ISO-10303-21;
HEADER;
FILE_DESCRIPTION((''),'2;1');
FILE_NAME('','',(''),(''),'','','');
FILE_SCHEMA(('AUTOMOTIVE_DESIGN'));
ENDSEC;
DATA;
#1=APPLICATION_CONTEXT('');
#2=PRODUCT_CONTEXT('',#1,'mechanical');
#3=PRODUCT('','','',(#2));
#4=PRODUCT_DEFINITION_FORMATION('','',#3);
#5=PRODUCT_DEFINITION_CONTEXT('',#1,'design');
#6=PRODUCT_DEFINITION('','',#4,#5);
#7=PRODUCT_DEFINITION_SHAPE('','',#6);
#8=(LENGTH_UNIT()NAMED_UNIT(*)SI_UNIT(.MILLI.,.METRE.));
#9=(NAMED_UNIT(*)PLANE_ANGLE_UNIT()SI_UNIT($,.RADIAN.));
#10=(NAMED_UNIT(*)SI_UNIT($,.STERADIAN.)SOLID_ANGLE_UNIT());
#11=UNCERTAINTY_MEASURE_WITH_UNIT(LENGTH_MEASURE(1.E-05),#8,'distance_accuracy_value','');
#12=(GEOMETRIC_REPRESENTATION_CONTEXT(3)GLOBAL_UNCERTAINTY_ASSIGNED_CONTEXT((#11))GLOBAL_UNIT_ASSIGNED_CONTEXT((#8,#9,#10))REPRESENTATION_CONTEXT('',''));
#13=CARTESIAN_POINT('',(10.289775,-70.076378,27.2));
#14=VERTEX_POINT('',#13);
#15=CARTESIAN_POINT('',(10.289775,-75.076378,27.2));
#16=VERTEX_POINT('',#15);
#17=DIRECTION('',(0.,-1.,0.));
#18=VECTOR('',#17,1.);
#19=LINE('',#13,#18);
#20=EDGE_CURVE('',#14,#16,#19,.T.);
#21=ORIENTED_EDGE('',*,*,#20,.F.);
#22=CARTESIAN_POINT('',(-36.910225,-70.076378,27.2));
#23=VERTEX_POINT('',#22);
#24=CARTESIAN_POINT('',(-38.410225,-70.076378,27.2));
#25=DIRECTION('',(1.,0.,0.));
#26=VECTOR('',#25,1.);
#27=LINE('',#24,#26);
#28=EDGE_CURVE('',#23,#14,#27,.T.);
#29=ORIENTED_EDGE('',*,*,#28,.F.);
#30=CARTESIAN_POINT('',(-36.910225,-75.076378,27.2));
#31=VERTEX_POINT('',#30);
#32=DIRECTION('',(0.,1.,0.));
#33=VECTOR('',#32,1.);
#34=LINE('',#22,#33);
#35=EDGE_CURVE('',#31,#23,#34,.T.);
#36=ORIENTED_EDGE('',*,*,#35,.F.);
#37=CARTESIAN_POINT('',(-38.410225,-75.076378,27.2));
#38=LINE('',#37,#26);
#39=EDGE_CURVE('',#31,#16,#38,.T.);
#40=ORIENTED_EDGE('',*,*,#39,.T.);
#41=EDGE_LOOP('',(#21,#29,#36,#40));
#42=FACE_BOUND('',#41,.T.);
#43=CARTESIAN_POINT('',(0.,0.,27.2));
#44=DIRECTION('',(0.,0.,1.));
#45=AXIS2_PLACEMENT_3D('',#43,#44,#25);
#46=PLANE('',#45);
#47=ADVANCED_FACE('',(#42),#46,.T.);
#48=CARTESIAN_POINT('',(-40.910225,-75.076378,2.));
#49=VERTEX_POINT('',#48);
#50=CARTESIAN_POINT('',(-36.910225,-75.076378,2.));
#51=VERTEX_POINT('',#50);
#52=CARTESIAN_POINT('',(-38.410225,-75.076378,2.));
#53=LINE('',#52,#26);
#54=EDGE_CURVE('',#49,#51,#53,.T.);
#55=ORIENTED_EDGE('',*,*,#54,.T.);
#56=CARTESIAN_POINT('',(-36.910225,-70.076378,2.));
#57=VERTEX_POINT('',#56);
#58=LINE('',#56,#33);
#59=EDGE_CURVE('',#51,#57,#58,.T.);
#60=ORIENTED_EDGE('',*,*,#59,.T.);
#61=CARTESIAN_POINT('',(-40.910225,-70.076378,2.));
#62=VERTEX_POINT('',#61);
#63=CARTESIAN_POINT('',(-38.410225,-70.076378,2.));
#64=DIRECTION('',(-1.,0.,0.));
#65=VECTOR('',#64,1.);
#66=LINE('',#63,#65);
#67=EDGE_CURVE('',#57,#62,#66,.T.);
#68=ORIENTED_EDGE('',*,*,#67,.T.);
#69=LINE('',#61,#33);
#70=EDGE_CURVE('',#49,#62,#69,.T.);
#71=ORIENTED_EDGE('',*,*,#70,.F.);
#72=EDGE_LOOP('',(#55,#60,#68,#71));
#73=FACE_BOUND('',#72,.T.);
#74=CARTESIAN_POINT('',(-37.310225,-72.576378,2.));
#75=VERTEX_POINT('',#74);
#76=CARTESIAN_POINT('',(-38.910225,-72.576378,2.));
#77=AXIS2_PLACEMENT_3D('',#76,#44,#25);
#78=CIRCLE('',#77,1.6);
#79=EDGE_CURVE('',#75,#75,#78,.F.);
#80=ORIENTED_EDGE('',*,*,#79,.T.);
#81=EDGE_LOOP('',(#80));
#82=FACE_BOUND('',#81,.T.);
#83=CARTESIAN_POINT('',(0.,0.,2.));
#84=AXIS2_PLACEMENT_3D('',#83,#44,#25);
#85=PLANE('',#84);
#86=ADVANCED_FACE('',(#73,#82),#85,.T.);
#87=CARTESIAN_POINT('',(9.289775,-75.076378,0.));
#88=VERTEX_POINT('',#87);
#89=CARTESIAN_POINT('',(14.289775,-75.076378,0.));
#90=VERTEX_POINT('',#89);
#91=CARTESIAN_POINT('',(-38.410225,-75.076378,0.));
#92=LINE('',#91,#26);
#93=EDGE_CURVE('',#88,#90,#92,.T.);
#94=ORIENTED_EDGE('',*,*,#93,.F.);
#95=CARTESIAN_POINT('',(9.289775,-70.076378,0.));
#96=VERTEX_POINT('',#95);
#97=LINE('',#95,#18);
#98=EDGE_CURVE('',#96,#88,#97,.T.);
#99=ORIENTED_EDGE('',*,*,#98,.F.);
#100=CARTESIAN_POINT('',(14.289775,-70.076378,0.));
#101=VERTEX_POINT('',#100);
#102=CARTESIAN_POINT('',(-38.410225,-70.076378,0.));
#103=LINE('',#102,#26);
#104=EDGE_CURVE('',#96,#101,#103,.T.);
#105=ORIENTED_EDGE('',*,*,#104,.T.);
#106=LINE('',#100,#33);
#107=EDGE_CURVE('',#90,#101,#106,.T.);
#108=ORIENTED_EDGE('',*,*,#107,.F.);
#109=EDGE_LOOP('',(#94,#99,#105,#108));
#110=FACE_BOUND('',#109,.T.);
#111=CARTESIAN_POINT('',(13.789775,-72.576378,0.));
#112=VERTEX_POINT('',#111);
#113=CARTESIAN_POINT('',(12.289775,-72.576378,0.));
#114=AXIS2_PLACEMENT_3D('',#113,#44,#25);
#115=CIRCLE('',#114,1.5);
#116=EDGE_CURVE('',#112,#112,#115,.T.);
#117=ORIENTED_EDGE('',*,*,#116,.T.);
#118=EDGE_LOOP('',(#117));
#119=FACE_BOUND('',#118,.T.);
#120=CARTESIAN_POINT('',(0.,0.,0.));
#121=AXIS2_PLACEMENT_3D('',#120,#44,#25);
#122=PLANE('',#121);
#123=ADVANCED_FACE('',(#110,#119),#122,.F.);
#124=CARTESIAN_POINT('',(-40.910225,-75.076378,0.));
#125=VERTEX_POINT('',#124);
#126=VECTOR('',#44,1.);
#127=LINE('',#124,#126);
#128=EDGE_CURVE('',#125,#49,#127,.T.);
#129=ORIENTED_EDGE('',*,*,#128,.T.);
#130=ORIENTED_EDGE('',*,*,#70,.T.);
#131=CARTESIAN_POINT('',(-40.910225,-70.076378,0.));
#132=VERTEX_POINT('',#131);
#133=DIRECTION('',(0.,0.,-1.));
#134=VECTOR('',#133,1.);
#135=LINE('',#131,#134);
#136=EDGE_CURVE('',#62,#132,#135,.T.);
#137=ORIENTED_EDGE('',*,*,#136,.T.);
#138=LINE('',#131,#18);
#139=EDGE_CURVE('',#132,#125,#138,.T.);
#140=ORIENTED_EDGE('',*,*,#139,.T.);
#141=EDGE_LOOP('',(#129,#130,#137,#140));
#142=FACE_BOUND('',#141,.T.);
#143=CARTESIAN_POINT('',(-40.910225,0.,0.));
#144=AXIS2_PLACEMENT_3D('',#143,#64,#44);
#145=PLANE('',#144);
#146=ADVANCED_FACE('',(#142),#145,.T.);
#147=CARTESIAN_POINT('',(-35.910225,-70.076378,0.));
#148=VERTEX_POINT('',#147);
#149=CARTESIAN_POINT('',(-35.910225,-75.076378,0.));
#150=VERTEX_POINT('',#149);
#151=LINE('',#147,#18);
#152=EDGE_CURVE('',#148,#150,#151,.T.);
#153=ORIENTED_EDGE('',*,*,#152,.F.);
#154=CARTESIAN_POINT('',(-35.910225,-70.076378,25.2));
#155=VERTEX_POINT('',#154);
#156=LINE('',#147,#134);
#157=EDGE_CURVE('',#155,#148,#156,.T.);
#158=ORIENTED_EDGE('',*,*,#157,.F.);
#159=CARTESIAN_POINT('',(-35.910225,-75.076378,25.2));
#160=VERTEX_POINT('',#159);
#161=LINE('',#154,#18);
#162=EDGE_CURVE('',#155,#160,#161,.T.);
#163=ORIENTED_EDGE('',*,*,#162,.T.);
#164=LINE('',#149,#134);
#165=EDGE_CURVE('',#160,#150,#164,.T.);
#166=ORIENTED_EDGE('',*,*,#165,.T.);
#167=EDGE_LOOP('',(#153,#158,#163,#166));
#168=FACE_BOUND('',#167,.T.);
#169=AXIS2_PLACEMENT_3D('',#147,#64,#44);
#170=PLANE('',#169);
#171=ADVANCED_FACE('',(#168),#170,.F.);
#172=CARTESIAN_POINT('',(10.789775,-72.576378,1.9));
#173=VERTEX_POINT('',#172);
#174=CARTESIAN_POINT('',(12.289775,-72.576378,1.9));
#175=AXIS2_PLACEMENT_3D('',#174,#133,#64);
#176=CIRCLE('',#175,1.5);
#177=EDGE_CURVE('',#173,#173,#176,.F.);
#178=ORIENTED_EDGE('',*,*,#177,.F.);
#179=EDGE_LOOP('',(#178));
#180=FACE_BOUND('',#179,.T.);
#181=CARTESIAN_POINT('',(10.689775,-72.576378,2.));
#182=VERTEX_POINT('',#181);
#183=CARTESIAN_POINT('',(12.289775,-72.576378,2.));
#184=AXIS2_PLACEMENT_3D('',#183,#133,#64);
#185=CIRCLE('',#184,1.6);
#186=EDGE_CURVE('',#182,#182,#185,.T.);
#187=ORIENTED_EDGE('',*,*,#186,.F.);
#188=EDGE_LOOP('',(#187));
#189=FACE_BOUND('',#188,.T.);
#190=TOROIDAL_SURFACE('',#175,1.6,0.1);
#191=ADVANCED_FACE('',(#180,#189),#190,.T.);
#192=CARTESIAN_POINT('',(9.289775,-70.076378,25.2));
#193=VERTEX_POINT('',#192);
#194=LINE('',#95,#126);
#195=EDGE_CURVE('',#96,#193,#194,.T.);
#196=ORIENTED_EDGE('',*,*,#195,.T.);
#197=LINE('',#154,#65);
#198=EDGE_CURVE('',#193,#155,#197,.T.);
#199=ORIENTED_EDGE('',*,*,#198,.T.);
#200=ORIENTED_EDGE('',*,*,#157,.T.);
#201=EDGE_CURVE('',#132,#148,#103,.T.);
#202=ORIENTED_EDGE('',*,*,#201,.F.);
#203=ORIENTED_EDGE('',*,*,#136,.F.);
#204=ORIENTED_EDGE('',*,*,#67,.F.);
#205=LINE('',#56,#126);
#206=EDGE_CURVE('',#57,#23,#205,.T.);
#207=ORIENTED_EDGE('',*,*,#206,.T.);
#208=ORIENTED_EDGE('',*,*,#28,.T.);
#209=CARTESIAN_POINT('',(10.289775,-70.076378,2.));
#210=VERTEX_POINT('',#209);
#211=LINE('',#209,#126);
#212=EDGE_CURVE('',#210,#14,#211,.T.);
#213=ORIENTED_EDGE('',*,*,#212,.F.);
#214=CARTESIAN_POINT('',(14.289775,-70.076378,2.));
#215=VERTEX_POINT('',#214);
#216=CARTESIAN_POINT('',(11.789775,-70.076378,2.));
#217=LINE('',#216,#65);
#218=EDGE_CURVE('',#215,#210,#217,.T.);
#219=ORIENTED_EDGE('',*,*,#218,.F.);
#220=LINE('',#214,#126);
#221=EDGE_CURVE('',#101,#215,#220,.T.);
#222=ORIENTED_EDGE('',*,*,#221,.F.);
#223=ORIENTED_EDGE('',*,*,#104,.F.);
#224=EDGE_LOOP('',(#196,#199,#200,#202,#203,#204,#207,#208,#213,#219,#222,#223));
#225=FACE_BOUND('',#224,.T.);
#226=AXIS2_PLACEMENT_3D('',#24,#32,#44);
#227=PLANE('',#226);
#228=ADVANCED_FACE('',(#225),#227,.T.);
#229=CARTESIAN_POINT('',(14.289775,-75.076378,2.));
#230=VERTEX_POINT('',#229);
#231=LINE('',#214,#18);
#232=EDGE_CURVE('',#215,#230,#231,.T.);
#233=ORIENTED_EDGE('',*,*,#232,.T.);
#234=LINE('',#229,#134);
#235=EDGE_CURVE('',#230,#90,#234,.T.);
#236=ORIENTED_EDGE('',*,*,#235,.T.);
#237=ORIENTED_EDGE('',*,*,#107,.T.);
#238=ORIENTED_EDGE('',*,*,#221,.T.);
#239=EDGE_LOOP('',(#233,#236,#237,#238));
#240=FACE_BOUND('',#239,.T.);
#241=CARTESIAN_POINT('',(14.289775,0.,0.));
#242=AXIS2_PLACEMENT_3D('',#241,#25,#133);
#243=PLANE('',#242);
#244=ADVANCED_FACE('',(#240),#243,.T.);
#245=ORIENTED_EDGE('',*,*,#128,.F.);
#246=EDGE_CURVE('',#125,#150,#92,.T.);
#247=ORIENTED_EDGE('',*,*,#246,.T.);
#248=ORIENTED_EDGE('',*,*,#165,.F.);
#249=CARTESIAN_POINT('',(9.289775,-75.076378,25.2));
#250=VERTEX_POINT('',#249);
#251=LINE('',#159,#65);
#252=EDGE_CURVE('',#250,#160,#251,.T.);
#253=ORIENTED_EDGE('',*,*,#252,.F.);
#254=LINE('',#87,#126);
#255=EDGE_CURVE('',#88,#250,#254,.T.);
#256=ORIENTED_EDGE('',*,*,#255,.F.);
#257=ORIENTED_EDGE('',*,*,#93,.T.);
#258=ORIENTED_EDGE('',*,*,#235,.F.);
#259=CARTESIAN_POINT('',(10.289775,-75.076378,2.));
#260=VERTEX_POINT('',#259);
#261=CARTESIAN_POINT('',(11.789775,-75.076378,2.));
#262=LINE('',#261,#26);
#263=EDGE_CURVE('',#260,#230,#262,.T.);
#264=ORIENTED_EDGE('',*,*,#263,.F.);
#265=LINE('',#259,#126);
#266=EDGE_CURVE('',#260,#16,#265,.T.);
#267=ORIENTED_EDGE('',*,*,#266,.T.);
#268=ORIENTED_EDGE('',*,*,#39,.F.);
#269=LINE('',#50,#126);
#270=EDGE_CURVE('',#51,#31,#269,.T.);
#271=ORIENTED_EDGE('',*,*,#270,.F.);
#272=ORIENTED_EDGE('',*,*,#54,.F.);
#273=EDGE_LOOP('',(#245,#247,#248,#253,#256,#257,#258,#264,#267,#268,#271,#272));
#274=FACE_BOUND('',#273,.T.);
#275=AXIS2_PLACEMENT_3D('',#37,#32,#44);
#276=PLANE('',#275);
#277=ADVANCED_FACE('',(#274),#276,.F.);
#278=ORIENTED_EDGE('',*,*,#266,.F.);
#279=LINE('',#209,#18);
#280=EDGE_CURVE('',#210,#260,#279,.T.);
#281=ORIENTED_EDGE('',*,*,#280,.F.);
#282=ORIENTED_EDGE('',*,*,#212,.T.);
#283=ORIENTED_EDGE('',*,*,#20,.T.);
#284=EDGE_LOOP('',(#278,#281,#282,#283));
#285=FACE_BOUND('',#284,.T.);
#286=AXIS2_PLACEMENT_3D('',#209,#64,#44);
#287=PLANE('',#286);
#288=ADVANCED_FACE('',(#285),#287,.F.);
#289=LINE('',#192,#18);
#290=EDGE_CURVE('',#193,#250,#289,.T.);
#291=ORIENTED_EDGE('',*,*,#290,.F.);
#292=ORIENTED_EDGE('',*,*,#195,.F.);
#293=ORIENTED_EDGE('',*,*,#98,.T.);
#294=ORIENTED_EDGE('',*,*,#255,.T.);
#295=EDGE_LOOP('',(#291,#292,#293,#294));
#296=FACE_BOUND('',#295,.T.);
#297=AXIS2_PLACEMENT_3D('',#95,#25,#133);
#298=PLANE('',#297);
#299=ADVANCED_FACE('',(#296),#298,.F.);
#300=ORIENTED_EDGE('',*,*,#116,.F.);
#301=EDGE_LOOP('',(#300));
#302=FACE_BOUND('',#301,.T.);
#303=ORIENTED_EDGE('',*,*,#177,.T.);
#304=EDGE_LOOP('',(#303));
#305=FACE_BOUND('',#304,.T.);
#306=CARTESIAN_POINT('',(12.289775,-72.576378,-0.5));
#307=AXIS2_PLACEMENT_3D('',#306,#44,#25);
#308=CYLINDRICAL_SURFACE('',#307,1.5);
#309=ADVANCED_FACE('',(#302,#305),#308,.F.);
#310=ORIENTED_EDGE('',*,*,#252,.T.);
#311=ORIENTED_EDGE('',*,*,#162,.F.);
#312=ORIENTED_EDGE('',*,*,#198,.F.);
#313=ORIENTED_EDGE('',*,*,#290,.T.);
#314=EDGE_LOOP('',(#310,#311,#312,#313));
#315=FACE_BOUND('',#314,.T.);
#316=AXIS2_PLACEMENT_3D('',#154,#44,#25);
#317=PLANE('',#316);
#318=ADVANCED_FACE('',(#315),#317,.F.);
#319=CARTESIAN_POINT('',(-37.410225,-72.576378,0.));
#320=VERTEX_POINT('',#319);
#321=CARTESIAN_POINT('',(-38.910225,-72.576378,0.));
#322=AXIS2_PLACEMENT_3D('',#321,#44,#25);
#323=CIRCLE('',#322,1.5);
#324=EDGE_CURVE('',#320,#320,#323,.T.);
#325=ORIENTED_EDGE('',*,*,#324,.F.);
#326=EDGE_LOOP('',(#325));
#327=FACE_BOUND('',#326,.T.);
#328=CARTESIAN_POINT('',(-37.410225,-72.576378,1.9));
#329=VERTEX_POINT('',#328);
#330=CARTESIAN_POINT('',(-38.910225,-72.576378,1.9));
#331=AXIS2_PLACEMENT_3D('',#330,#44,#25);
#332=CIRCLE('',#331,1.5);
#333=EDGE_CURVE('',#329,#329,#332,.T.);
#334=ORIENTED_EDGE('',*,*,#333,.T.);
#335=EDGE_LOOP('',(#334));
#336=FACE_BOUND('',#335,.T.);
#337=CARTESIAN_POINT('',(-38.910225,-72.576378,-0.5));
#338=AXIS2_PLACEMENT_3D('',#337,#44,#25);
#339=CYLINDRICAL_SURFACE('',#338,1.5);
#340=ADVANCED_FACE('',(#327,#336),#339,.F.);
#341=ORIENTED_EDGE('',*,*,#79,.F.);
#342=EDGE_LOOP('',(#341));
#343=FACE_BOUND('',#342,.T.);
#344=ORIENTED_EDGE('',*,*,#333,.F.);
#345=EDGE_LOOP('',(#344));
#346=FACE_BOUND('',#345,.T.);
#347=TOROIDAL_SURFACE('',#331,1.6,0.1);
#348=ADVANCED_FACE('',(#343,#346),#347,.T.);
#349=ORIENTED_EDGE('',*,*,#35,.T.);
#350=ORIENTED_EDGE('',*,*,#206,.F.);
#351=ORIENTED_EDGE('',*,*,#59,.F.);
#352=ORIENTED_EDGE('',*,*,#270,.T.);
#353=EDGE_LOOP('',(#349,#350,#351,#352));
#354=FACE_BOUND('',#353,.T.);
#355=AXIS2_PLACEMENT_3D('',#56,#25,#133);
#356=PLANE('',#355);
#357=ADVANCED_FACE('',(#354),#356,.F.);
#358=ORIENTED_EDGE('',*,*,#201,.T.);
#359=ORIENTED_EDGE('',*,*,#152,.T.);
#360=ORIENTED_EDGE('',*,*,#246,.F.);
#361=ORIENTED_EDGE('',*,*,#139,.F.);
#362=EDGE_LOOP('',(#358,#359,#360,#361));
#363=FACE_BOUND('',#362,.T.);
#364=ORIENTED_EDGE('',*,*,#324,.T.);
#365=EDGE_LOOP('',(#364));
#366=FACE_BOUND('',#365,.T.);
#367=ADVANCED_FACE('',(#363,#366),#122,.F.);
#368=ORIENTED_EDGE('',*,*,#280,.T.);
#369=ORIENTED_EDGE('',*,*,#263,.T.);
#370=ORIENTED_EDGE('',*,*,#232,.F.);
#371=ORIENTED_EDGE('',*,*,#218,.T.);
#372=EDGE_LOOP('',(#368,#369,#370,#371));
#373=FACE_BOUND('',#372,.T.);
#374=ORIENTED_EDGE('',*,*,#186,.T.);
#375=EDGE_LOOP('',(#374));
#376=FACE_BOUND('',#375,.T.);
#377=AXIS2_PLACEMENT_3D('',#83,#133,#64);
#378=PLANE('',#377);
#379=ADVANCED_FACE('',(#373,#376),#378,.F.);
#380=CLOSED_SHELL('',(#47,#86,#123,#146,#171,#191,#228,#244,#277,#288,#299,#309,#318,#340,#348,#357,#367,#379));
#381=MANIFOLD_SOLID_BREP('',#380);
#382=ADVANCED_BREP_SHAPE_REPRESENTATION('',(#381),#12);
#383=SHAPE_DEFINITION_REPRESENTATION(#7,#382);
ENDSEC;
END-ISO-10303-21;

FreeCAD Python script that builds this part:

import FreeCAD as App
import Part
import Sketcher

V = App.Vector
Q = App.Units.Quantity


def edges_at(feature, points):
    """Names of the edges that pass closest to the given points."""
    edges = feature.Shape.Edges
    near = lambda p: min(range(len(edges)), key=lambda i: edges[i].distToShape(Part.Vertex(*p))[0])
    return sorted({f"Edge{near(p) + 1}" for p in points})


def add_polygon(sketch, points):
    """Adds a closed chain of lines whose ends are joined by coincident constraints."""
    first, n = sketch.GeometryCount, len(points)
    for a, b in zip(points, points[1:] + points[:1]):
        sketch.addGeometry(Part.LineSegment(App.Vector(*a, 0), App.Vector(*b, 0)), False)
    for i in range(n):
        sketch.addConstraint(Sketcher.Constraint("Coincident", first + i, 2, first + (i + 1) % n, 1))

doc = App.newDocument("Part")
body = doc.addObject("PartDesign::Body", "Body")

# Sketch on XY plane
sketch1 = doc.addObject("Sketcher::SketchObject", "Sketch")
body.addObject(sketch1)
sketch1.AttachmentSupport = (doc.XY_Plane, [""])
sketch1.MapMode = "FlatFace"
add_polygon(sketch1, [(-38, -70), (-38, -75), (12, -75), (12, -70)])  # lines 0-3
sketch1.addConstraint([
    Sketcher.Constraint("Vertical", 0),
    Sketcher.Constraint("Horizontal", 1),
    Sketcher.Constraint("Vertical", 2),
    Sketcher.Constraint("Horizontal", 3),
    Sketcher.Constraint("DistanceY", 0, 2, 0, 1, Q("5 mm")),
    Sketcher.Constraint("DistanceX", 1, 1, 1, 2, Q("50.2 mm")),
    Sketcher.Constraint("DistanceX", 0, 2, -1, 1, Q("38.410225 mm")),
    Sketcher.Constraint("DistanceY", 0, 2, -1, 1, Q("75.076378 mm")),
])
pad1 = doc.addObject("PartDesign::Pad", "Pad")
body.addObject(pad1)
pad1.Profile = sketch1
pad1.Length = 27.2

# Sketch on XZ plane
sketch2 = doc.addObject("Sketcher::SketchObject", "Sketch001")
body.addObject(sketch2)
sketch2.AttachmentSupport = (doc.XZ_Plane, [""])
sketch2.MapMode = "FlatFace"
sketch2.AttachmentOffset = App.Placement(V(0, 0, 75.076378), App.Rotation())
add_polygon(sketch2, [(9, 0), (9, 25), (-36, 25), (-36, 0)])  # lines 0-3
sketch2.addConstraint([
    Sketcher.Constraint("Vertical", 0),
    Sketcher.Constraint("Horizontal", 1),
    Sketcher.Constraint("Vertical", 2),
    Sketcher.Constraint("Horizontal", 3),
    Sketcher.Constraint("PointOnObject", 2, 2, -1),
    Sketcher.Constraint("DistanceX", 1, 2, 1, 1, Q("45.2 mm")),
    Sketcher.Constraint("DistanceY", 0, 1, 0, 2, Q("25.2 mm")),
    Sketcher.Constraint("DistanceX", -1, 1, 0, 2, Q("9.289775 mm")),
])
pocket1 = doc.addObject("PartDesign::Pocket", "Pocket")
body.addObject(pocket1)
pocket1.Profile = sketch2
pocket1.Type = "ThroughAll"

# Sketch on XY plane
sketch3 = doc.addObject("Sketcher::SketchObject", "Sketch002")
body.addObject(sketch3)
sketch3.AttachmentSupport = (doc.XY_Plane, [""])
sketch3.MapMode = "FlatFace"
sketch3.AttachmentOffset = App.Placement(V(0, 0, 27.2), App.Rotation())
add_polygon(sketch3, [(-38.4, -70.1), (-38.4, -75.1), (-36.9, -75.1), (-36.9, -70.1)])  # lines 0-3
sketch3.addConstraint([
    Sketcher.Constraint("Vertical", 0),
    Sketcher.Constraint("Horizontal", 1),
    Sketcher.Constraint("Vertical", 2),
    Sketcher.Constraint("Horizontal", 3),
    Sketcher.Constraint("DistanceY", 0, 2, 0, 1, Q("5 mm")),
    Sketcher.Constraint("DistanceX", 1, 1, 1, 2, Q("1.5 mm")),
    Sketcher.Constraint("DistanceX", 0, 2, -1, 1, Q("38.410225 mm")),
    Sketcher.Constraint("DistanceY", 0, 2, -1, 1, Q("75.076378 mm")),
])
pocket2 = doc.addObject("PartDesign::Pocket", "Pocket001")
body.addObject(pocket2)
pocket2.Profile = sketch3
pocket2.Length = 25.2

# Sketch on XY plane
sketch4 = doc.addObject("Sketcher::SketchObject", "Sketch003")
body.addObject(sketch4)
sketch4.AttachmentSupport = (doc.XY_Plane, [""])
sketch4.MapMode = "FlatFace"
sketch4.AttachmentOffset = App.Placement(V(0, 0, 27.2), App.Rotation())
add_polygon(sketch4, [(10.3, -70.1), (10.3, -75.1), (11.8, -75.1), (11.8, -70.1)])  # lines 0-3
sketch4.addConstraint([
    Sketcher.Constraint("Vertical", 0),
    Sketcher.Constraint("Horizontal", 1),
    Sketcher.Constraint("Vertical", 2),
    Sketcher.Constraint("Horizontal", 3),
    Sketcher.Constraint("DistanceY", 0, 2, 0, 1, Q("5 mm")),
    Sketcher.Constraint("DistanceX", 1, 1, 1, 2, Q("1.5 mm")),
    Sketcher.Constraint("DistanceX", -1, 1, 0, 2, Q("10.289775 mm")),
    Sketcher.Constraint("DistanceY", 0, 2, -1, 1, Q("75.076378 mm")),
])
pocket3 = doc.addObject("PartDesign::Pocket", "Pocket002")
body.addObject(pocket3)
pocket3.Profile = sketch4
pocket3.Length = 25.2

# Sketch on YZ plane
sketch5 = doc.addObject("Sketcher::SketchObject", "Sketch004")
body.addObject(sketch5)
sketch5.AttachmentSupport = (doc.YZ_Plane, [""])
sketch5.MapMode = "FlatFace"
sketch5.AttachmentOffset = App.Placement(V(0, 0, -38.410225), App.Rotation())
add_polygon(sketch5, [(-70.1, 0), (-75.1, 0), (-75.1, 2), (-70.1, 2)])  # lines 0-3
sketch5.addConstraint([
    Sketcher.Constraint("Horizontal", 0),
    Sketcher.Constraint("Vertical", 1),
    Sketcher.Constraint("Horizontal", 2),
    Sketcher.Constraint("Vertical", 3),
    Sketcher.Constraint("PointOnObject", 0, 2, -1),
    Sketcher.Constraint("DistanceX", 0, 2, 0, 1, Q("5 mm")),
    Sketcher.Constraint("DistanceY", 1, 1, 1, 2, Q("2 mm")),
    Sketcher.Constraint("DistanceX", 0, 2, -1, 1, Q("75.076378 mm")),
])
pad2 = doc.addObject("PartDesign::Pad", "Pad001")
body.addObject(pad2)
pad2.Profile = sketch5
pad2.Length = 2.5
pad2.Reversed = True

# Sketch on YZ plane
sketch6 = doc.addObject("Sketcher::SketchObject", "Sketch005")
body.addObject(sketch6)
sketch6.AttachmentSupport = (doc.YZ_Plane, [""])
sketch6.MapMode = "FlatFace"
sketch6.AttachmentOffset = App.Placement(V(0, 0, 11.789775), App.Rotation())
add_polygon(sketch6, [(-70.1, 2), (-75.1, 2), (-75.1, 0), (-70.1, 0)])  # lines 0-3
sketch6.addConstraint([
    Sketcher.Constraint("Horizontal", 0),
    Sketcher.Constraint("Vertical", 1),
    Sketcher.Constraint("Horizontal", 2),
    Sketcher.Constraint("Vertical", 3),
    Sketcher.Constraint("PointOnObject", 1, 2, -1),
    Sketcher.Constraint("DistanceX", 0, 2, 0, 1, Q("5 mm")),
    Sketcher.Constraint("DistanceY", 1, 2, 1, 1, Q("2 mm")),
    Sketcher.Constraint("DistanceX", 0, 2, -1, 1, Q("75.076378 mm")),
])
pad3 = doc.addObject("PartDesign::Pad", "Pad002")
body.addObject(pad3)
pad3.Profile = sketch6
pad3.Length = 2.5

# Sketch on XY plane
sketch7 = doc.addObject("Sketcher::SketchObject", "Sketch006")
body.addObject(sketch7)
sketch7.AttachmentSupport = (doc.XY_Plane, [""])
sketch7.MapMode = "FlatFace"
sketch7.AttachmentOffset = App.Placement(V(0, 0, 2), App.Rotation())
sketch7.addGeometry(Part.Circle(V(-38.9, -72.6, 0), V(0, 0, 1), 1.5), False)
sketch7.addConstraint([
    Sketcher.Constraint("Diameter", 0, Q("3 mm")),
    Sketcher.Constraint("DistanceX", 0, 3, -1, 1, Q("38.910225 mm")),
    Sketcher.Constraint("DistanceY", 0, 3, -1, 1, Q("72.576378 mm")),
])
pocket4 = doc.addObject("PartDesign::Pocket", "Pocket003")
body.addObject(pocket4)
pocket4.Profile = sketch7
pocket4.Length = 2.5
doc.recompute()

fillet = doc.addObject("PartDesign::Fillet", "Fillet")
body.addObject(fillet)
fillet.Base = (pocket4, edges_at(pocket4, [(-40.41, -72.576, 2)]))
fillet.Radius = 0.1

# Sketch on XY plane
sketch8 = doc.addObject("Sketcher::SketchObject", "Sketch007")
body.addObject(sketch8)
sketch8.AttachmentSupport = (doc.XY_Plane, [""])
sketch8.MapMode = "FlatFace"
sketch8.AttachmentOffset = App.Placement(V(0, 0, 2), App.Rotation())
sketch8.addGeometry(Part.Circle(V(12.3, -72.6, 0), V(0, 0, 1), 1.5), False)
sketch8.addConstraint([
    Sketcher.Constraint("Diameter", 0, Q("3 mm")),
    Sketcher.Constraint("DistanceX", -1, 1, 0, 3, Q("12.289775 mm")),
    Sketcher.Constraint("DistanceY", 0, 3, -1, 1, Q("72.576378 mm")),
])
pocket5 = doc.addObject("PartDesign::Pocket", "Pocket004")
body.addObject(pocket5)
pocket5.Profile = sketch8
pocket5.Length = 2.5
doc.recompute()

fillet2 = doc.addObject("PartDesign::Fillet", "Fillet001")
body.addObject(fillet2)
fillet2.Base = (pocket5, edges_at(pocket5, [(10.79, -72.576, 2)]))
fillet2.Radius = 0.1

doc.recompute()
